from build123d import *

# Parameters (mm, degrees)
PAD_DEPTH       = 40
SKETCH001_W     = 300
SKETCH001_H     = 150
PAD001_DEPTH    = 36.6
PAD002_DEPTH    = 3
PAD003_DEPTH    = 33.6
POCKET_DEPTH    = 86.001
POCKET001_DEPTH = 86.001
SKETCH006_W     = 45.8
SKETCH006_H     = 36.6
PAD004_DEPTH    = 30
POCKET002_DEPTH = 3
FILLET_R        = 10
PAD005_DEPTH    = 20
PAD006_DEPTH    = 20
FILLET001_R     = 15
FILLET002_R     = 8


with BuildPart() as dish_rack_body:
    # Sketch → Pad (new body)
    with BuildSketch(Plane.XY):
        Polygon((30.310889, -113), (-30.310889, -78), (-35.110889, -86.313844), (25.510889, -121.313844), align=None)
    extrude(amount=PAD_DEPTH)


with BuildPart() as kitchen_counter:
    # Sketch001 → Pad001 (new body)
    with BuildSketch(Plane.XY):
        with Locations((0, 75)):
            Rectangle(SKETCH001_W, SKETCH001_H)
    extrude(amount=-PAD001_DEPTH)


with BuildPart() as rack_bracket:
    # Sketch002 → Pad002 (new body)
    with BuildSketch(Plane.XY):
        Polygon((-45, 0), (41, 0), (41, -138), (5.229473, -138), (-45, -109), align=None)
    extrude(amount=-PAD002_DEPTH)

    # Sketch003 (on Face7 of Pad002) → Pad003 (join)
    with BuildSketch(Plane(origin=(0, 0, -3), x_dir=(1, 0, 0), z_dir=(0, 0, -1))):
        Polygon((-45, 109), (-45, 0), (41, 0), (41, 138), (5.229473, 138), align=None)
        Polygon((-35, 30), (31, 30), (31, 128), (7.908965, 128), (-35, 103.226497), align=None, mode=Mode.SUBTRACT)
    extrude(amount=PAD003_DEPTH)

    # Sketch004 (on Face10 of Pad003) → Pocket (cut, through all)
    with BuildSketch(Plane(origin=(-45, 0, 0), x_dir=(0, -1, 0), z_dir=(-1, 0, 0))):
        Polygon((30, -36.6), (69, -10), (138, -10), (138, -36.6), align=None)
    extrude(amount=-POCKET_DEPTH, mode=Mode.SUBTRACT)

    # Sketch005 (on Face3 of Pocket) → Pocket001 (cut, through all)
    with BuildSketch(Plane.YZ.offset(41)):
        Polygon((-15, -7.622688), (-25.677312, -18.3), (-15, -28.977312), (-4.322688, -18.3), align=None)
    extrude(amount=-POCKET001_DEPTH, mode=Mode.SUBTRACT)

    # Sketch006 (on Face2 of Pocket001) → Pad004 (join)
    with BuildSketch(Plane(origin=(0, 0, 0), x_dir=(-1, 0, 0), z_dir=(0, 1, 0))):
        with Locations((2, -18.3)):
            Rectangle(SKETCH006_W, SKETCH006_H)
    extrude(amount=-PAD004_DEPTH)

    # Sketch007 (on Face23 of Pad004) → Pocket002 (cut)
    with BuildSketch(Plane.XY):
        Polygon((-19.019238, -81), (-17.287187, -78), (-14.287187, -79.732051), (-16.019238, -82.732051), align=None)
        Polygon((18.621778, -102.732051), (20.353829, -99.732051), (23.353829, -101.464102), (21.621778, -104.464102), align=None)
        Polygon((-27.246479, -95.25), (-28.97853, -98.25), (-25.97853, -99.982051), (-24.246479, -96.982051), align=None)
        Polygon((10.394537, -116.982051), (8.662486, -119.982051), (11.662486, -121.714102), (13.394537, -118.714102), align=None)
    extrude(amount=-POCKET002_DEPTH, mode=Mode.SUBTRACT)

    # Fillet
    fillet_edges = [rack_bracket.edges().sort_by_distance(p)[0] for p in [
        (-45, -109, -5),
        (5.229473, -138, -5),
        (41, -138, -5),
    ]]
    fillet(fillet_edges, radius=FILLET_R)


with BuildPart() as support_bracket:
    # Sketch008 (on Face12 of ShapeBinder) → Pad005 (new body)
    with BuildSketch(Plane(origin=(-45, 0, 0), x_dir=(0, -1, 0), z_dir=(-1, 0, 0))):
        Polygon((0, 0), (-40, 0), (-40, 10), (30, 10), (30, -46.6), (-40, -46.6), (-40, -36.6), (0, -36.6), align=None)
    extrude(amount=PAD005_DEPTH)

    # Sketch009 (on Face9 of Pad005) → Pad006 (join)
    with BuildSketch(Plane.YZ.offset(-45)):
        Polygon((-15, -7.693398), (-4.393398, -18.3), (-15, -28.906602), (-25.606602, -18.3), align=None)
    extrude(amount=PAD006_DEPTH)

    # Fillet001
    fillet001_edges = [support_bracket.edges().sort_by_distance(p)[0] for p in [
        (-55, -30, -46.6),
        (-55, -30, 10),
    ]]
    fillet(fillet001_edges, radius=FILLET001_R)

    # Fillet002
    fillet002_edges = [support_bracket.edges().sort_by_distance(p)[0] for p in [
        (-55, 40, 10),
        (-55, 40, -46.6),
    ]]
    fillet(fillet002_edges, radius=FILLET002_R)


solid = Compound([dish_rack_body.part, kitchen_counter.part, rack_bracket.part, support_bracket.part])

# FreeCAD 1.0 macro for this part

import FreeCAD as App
import Part
import Sketcher
from FreeCAD import Vector
Q = App.Units.Quantity


def edges_at(feature, points):
    """Names of the edges that pass closest to the given points."""
    edges = feature.Shape.Edges
    near = lambda p: min(range(len(edges)), key=lambda i: edges[i].distToShape(Part.Vertex(*p))[0])
    return sorted({f"Edge{near(p) + 1}" for p in points})


def add_polygon(sketch, points):
    """Adds a closed chain of lines whose ends are joined by coincident constraints."""
    first, n = sketch.GeometryCount, len(points)
    for a, b in zip(points, points[1:] + points[:1]):
        sketch.addGeometry(Part.LineSegment(App.Vector(*a, 0), App.Vector(*b, 0)), False)
    for i in range(n):
        sketch.addConstraint(Sketcher.Constraint("Coincident", first + i, 2, first + (i + 1) % n, 1))

doc = App.newDocument("Part")
params = doc.addObject("Spreadsheet::Sheet", "Params")
for row, (alias, value) in enumerate([
    ("sketch1_length", "70 mm"),
    ("sketch1_length2", "9.6 mm"),
    ("pad1_length", "40 mm"),
    ("sketch2_width", "300 mm"),
    ("sketch2_height", "150 mm"),
    ("pad2_length", "36.6 mm"),
    ("sketch3_width", "86 mm"),
    ("sketch3_height", "109 mm"),
    ("sketch3_height2", "138 mm"),
    ("pad3_length", "3 mm"),
    ("sketch4_width", "86 mm"),
    ("sketch4_width2", "66 mm"),
    ("sketch4_height", "109 mm"),
    ("sketch4_height2", "138 mm"),
    ("sketch4_height3", "98 mm"),
    ("pad4_length", "33.6 mm"),
    ("sketch5_width", "108 mm"),
    ("sketch5_width2", "69 mm"),
    ("sketch5_height", "26.6 mm"),
    ("sketch6_length", "15.099999 mm"),
    ("sketch7_width", "45.8 mm"),
    ("sketch7_height", "36.6 mm"),
    ("pad5_length", "30 mm"),
    ("pocket3_length", "3 mm"),
    ("fillet_radius", "10 mm"),
    ("sketch9_width", "40 mm"),
    ("sketch9_width2", "70 mm"),
    ("sketch9_height", "10 mm"),
    ("sketch9_height2", "36.6 mm"),
    ("pad6_length", "20 mm"),
    ("sketch10_length", "15 mm"),
    ("pad7_length", "20 mm"),
    ("fillet2_radius", "15 mm"),
    ("fillet3_radius", "8 mm"),
], start=1):
    params.set(f"A{row}", alias)
    params.set(f"B{row}", "=" + value)
    params.setAlias(f"B{row}", alias)

body = doc.addObject("PartDesign::Body", "Body")

# Sketch on XY plane
sketch1 = body.newObject("Sketcher::SketchObject", "Sketch")
sketch1.AttachmentSupport = (doc.getObject("XY_Plane"), [""])
sketch1.MapMode = "FlatFace"
add_polygon(sketch1, [(30, -113), (-30, -78), (-35, -86), (26, -121)])  # lines 0-3
sketch1.addConstraint(Sketcher.Constraint("Perpendicular", 0, 1))
sketch1.addConstraint(Sketcher.Constraint("Perpendicular", 1, 2))
sketch1.addConstraint(Sketcher.Constraint("Perpendicular", 2, 3))
sketch1.addConstraint(Sketcher.Constraint("Angle", 0, Q("150 deg")))
sketch1.addConstraint(Sketcher.Constraint("Distance", 0, Q("70 mm")))
sketch1.addConstraint(Sketcher.Constraint("DistanceY", 0, 2, -1, 1, Q("78 mm")))
sketch1.addConstraint(Sketcher.Constraint("Distance", 1, Q("9.6 mm")))
sketch1.addConstraint(Sketcher.Constraint("DistanceX", 0, 2, -1, 1, Q("30.310889 mm")))
sketch1.setExpression("Constraints[8]", "Params.sketch1_length")
sketch1.setExpression("Constraints[10]", "Params.sketch1_length2")
pad1 = body.newObject("PartDesign::Pad", "Pad")
pad1.Profile = sketch1
pad1.setExpression("Length", "Params.pad1_length")
body2 = doc.addObject("PartDesign::Body", "Body001")

# Sketch on XY plane
sketch2 = body2.newObject("Sketcher::SketchObject", "Sketch001")
sketch2.AttachmentSupport = (doc.getObject("XY_Plane001"), [""])
sketch2.MapMode = "FlatFace"
add_polygon(sketch2, [(-150, 150), (-150, 0), (150, 0), (150, 150)])  # lines 0-3
sketch2.addConstraint(Sketcher.Constraint("Vertical", 0))
sketch2.addConstraint(Sketcher.Constraint("Horizontal", 1))
sketch2.addConstraint(Sketcher.Constraint("Vertical", 2))
sketch2.addConstraint(Sketcher.Constraint("Horizontal", 3))
sketch2.addConstraint(Sketcher.Constraint("Symmetric", 0, 2, 1, 2, -1, 1))
sketch2.addConstraint(Sketcher.Constraint("DistanceX", 1, 1, 1, 2, Q("300 mm")))
sketch2.addConstraint(Sketcher.Constraint("DistanceY", 0, 2, 0, 1, Q("150 mm")))
sketch2.setExpression("Constraints[9]", "Params.sketch2_width")
sketch2.setExpression("Constraints[10]", "Params.sketch2_height")
pad2 = body2.newObject("PartDesign::Pad", "Pad001")
pad2.Profile = sketch2
pad2.setExpression("Length", "Params.pad2_length")
pad2.Reversed = True
body3 = doc.addObject("PartDesign::Body", "Body002")

# Sketch on XY plane
sketch3 = body3.newObject("Sketcher::SketchObject", "Sketch002")
sketch3.AttachmentSupport = (doc.getObject("XY_Plane002"), [""])
sketch3.MapMode = "FlatFace"
add_polygon(sketch3, [(41, 0), (-45, 0), (-45, -109), (5, -138), (41, -138)])  # lines 0-4
sketch3.addConstraint(Sketcher.Constraint("Horizontal", 0))
sketch3.addConstraint(Sketcher.Constraint("Vertical", 1))
sketch3.addConstraint(Sketcher.Constraint("Horizontal", 3))
sketch3.addConstraint(Sketcher.Constraint("Vertical", 4))
sketch3.addConstraint(Sketcher.Constraint("PointOnObject", 0, 2, -1))
sketch3.addConstraint(Sketcher.Constraint("DistanceX", 0, 2, 0, 1, Q("86 mm")))
sketch3.addConstraint(Sketcher.Constraint("DistanceY", 1, 2, 1, 1, Q("109 mm")))
sketch3.addConstraint(Sketcher.Constraint("DistanceY", 4, 1, 4, 2, Q("138 mm")))
sketch3.addConstraint(Sketcher.Constraint("Angle", 2, Q("-30 deg")))
sketch3.addConstraint(Sketcher.Constraint("DistanceX", 0, 2, -1, 1, Q("45 mm")))
sketch3.setExpression("Constraints[10]", "Params.sketch3_width")
sketch3.setExpression("Constraints[11]", "Params.sketch3_height")
sketch3.setExpression("Constraints[12]", "Params.sketch3_height2")
pad3 = body3.newObject("PartDesign::Pad", "Pad002")
pad3.Profile = sketch3
pad3.setExpression("Length", "Params.pad3_length")
pad3.Reversed = True

# Sketch on XY plane
sketch4 = body3.newObject("Sketcher::SketchObject", "Sketch003")
sketch4.AttachmentSupport = (doc.getObject("XY_Plane002"), [""])
sketch4.MapMode = "FlatFace"
sketch4.AttachmentOffset = App.Placement(Vector(0, 0, -3), App.Rotation())
add_polygon(sketch4, [(-45, -109), (-45, 0), (41, 0), (41, -138), (5, -138)])  # lines 0-4
add_polygon(sketch4, [(31, -30), (-35, -30), (-35, -103), (8, -128), (31, -128)])  # lines 5-9
sketch4.addConstraint(Sketcher.Constraint("Vertical", 0))
sketch4.addConstraint(Sketcher.Constraint("Horizontal", 1))
sketch4.addConstraint(Sketcher.Constraint("Vertical", 2))
sketch4.addConstraint(Sketcher.Constraint("Horizontal", 3))
sketch4.addConstraint(Sketcher.Constraint("Horizontal", 5))
sketch4.addConstraint(Sketcher.Constraint("Vertical", 6))
sketch4.addConstraint(Sketcher.Constraint("Horizontal", 8))
sketch4.addConstraint(Sketcher.Constraint("Vertical", 9))
sketch4.addConstraint(Sketcher.Constraint("PointOnObject", 0, 2, -1))
sketch4.addConstraint(Sketcher.Constraint("Parallel", 4, 7))
sketch4.addConstraint(Sketcher.Constraint("DistanceX", 1, 1, 1, 2, Q("86 mm")))
sketch4.addConstraint(Sketcher.Constraint("DistanceX", 5, 2, 5, 1, Q("66 mm")))
sketch4.addConstraint(Sketcher.Constraint("DistanceY", 0, 1, 0, 2, Q("109 mm")))
sketch4.addConstraint(Sketcher.Constraint("DistanceY", 2, 2, 2, 1, Q("138 mm")))
sketch4.addConstraint(Sketcher.Constraint("DistanceY", 9, 1, 9, 2, Q("98 mm")))
sketch4.addConstraint(Sketcher.Constraint("Angle", 4, Q("150 deg")))
sketch4.addConstraint(Sketcher.Constraint("DistanceX", 0, 2, -1, 1, Q("45 mm")))
sketch4.addConstraint(Sketcher.Constraint("DistanceX", 5, 2, -1, 1, Q("35 mm")))
sketch4.addConstraint(Sketcher.Constraint("DistanceY", 5, 2, -1, 1, Q("30 mm")))
sketch4.addConstraint(Sketcher.Constraint("DistanceX", 8, 1, 8, 2, Q("23.091035 mm")))
sketch4.setExpression("Constraints[20]", "Params.sketch4_width")
sketch4.setExpression("Constraints[21]", "Params.sketch4_width2")
sketch4.setExpression("Constraints[22]", "Params.sketch4_height")
sketch4.setExpression("Constraints[23]", "Params.sketch4_height2")
sketch4.setExpression("Constraints[24]", "Params.sketch4_height3")
pad4 = body3.newObject("PartDesign::Pad", "Pad003")
pad4.Profile = sketch4
pad4.setExpression("Length", "Params.pad4_length")
pad4.Reversed = True

# Sketch on YZ plane
sketch5 = body3.newObject("Sketcher::SketchObject", "Sketch004")
sketch5.AttachmentSupport = (doc.getObject("YZ_Plane002"), [""])
sketch5.MapMode = "FlatFace"
sketch5.AttachmentOffset = App.Placement(Vector(0, 0, -45), App.Rotation())
add_polygon(sketch5, [(-69, -10), (-30, -37), (-138, -37), (-138, -10)])  # lines 0-3
sketch5.addConstraint(Sketcher.Constraint("Horizontal", 1))
sketch5.addConstraint(Sketcher.Constraint("Vertical", 2))
sketch5.addConstraint(Sketcher.Constraint("Horizontal", 3))
sketch5.addConstraint(Sketcher.Constraint("DistanceX", 1, 2, 1, 1, Q("108 mm")))
sketch5.addConstraint(Sketcher.Constraint("DistanceX", 3, 1, 3, 2, Q("69 mm")))
sketch5.addConstraint(Sketcher.Constraint("DistanceY", 2, 1, 2, 2, Q("26.6 mm")))
sketch5.addConstraint(Sketcher.Constraint("DistanceX", 0, 2, -1, 1, Q("30 mm")))
sketch5.addConstraint(Sketcher.Constraint("DistanceY", 2, 2, -1, 1, Q("10 mm")))
sketch5.setExpression("Constraints[7]", "Params.sketch5_width")
sketch5.setExpression("Constraints[8]", "Params.sketch5_width2")
sketch5.setExpression("Constraints[9]", "Params.sketch5_height")
pocket1 = body3.newObject("PartDesign::Pocket", "Pocket")
pocket1.Profile = sketch5
pocket1.Type = "ThroughAll"
pocket1.Reversed = True

# Sketch on YZ plane
sketch6 = body3.newObject("Sketcher::SketchObject", "Sketch005")
sketch6.AttachmentSupport = (doc.getObject("YZ_Plane002"), [""])
sketch6.MapMode = "FlatFace"
sketch6.AttachmentOffset = App.Placement(Vector(0, 0, 41), App.Rotation())
add_polygon(sketch6, [(-15, -8), (-26, -18), (-15, -29), (-4, -18)])  # lines 0-3
sketch6.addConstraint(Sketcher.Constraint("Perpendicular", 0, 1))
sketch6.addConstraint(Sketcher.Constraint("Perpendicular", 1, 2))
sketch6.addConstraint(Sketcher.Constraint("Perpendicular", 2, 3))
sketch6.addConstraint(Sketcher.Constraint("Horizontal", 0, 2, 2, 2))
sketch6.addConstraint(Sketcher.Constraint("Vertical", 1, 2, 3, 2))
sketch6.addConstraint(Sketcher.Constraint("DistanceX", 1, 2, -1, 1, Q("15 mm")))
sketch6.addConstraint(Sketcher.Constraint("Distance", 0, Q("15.099999 mm")))
sketch6.addConstraint(Sketcher.Constraint("DistanceY", 0, 2, -1, 1, Q("18.3 mm")))
sketch6.setExpression("Constraints[10]", "Params.sketch6_length")
pocket2 = body3.newObject("PartDesign::Pocket", "Pocket001")
pocket2.Profile = sketch6
pocket2.Type = "ThroughAll"

# Sketch on XZ plane
sketch7 = body3.newObject("Sketcher::SketchObject", "Sketch006")
sketch7.AttachmentSupport = (doc.getObject("XZ_Plane002"), [""])
sketch7.MapMode = "FlatFace"
add_polygon(sketch7, [(21, 0), (21, -37), (-25, -37), (-25, 0)])  # lines 0-3
sketch7.addConstraint(Sketcher.Constraint("Vertical", 0))
sketch7.addConstraint(Sketcher.Constraint("Horizontal", 1))
sketch7.addConstraint(Sketcher.Constraint("Vertical", 2))
sketch7.addConstraint(Sketcher.Constraint("Horizontal", 3))
sketch7.addConstraint(Sketcher.Constraint("PointOnObject", 2, 2, -1))
sketch7.addConstraint(Sketcher.Constraint("DistanceX", 1, 2, 1, 1, Q("45.8 mm")))
sketch7.addConstraint(Sketcher.Constraint("DistanceY", 0, 2, 0, 1, Q("36.6 mm")))
sketch7.addConstraint(Sketcher.Constraint("DistanceX", -1, 1, 0, 2, Q("20.9 mm")))
sketch7.setExpression("Constraints[9]", "Params.sketch7_width")
sketch7.setExpression("Constraints[10]", "Params.sketch7_height")
pad5 = body3.newObject("PartDesign::Pad", "Pad004")
pad5.Profile = sketch7
pad5.setExpression("Length", "Params.pad5_length")

# Sketch on XY plane
sketch8 = body3.newObject("Sketcher::SketchObject", "Sketch007")
sketch8.AttachmentSupport = (doc.getObject("XY_Plane002"), [""])
sketch8.MapMode = "FlatFace"
add_polygon(sketch8, [(-17.3, -78), (-19, -81), (-16, -82.7), (-14.3, -79.7)])  # lines 0-3
add_polygon(sketch8, [(20.4, -99.7), (18.6, -102.7), (21.6, -104.5), (23.4, -101.5)])  # lines 4-7
add_polygon(sketch8, [(-27.2, -95.2), (-29, -98.2), (-26, -100), (-24.2, -97)])  # lines 8-11
add_polygon(sketch8, [(10.4, -117), (8.7, -120), (11.7, -121.7), (13.4, -118.7)])  # lines 12-15
sketch8.addConstraint(Sketcher.Constraint("Perpendicular", 0, 1))
sketch8.addConstraint(Sketcher.Constraint("Perpendicular", 1, 2))
sketch8.addConstraint(Sketcher.Constraint("Perpendicular", 2, 3))
sketch8.addConstraint(Sketcher.Constraint("Perpendicular", 3, 4))
sketch8.addConstraint(Sketcher.Constraint("Perpendicular", 4, 5))
sketch8.addConstraint(Sketcher.Constraint("Perpendicular", 5, 6))
sketch8.addConstraint(Sketcher.Constraint("Perpendicular", 6, 7))
sketch8.addConstraint(Sketcher.Constraint("Perpendicular", 7, 8))
sketch8.addConstraint(Sketcher.Constraint("Perpendicular", 8, 9))
sketch8.addConstraint(Sketcher.Constraint("Perpendicular", 9, 10))
sketch8.addConstraint(Sketcher.Constraint("Perpendicular", 10, 11))
sketch8.addConstraint(Sketcher.Constraint("Perpendicular", 11, 12))
sketch8.addConstraint(Sketcher.Constraint("Perpendicular", 12, 13))
sketch8.addConstraint(Sketcher.Constraint("Perpendicular", 13, 14))
sketch8.addConstraint(Sketcher.Constraint("Perpendicular", 14, 15))
sketch8.addConstraint(Sketcher.Constraint("Equal", 0, 1))
sketch8.addConstraint(Sketcher.Constraint("Equal", 3, 4))
sketch8.addConstraint(Sketcher.Constraint("Equal", 4, 5))
sketch8.addConstraint(Sketcher.Constraint("Equal", 7, 8))
sketch8.addConstraint(Sketcher.Constraint("Equal", 8, 9))
sketch8.addConstraint(Sketcher.Constraint("Equal", 11, 12))
sketch8.addConstraint(Sketcher.Constraint("Equal", 12, 13))
sketch8.addConstraint(Sketcher.Constraint("Angle", 0, Q("-120.000003 deg")))
sketch8.addConstraint(Sketcher.Constraint("DistanceY", 0, 2, -1, 1, Q("81 mm")))
sketch8.addConstraint(Sketcher.Constraint("DistanceY", 3, 2, -1, 1, Q("78 mm")))
sketch8.addConstraint(Sketcher.Constraint("DistanceY", 4, 2, 1, 2, Q("20 mm")))
sketch8.addConstraint(Sketcher.Constraint("DistanceY", 12, 2, 9, 2, Q("20 mm")))
sketch8.addConstraint(Sketcher.Constraint("DistanceY", 8, 2, -1, 1, Q("98.25 mm")))
sketch8.addConstraint(Sketcher.Constraint("DistanceX", 0, 2, -1, 1, Q("19.019238 mm")))
sketch8.addConstraint(Sketcher.Constraint("DistanceX", -1, 1, 6, 2, Q("23.353829 mm")))
sketch8.addConstraint(Sketcher.Constraint("DistanceX", 8, 2, -1, 1, Q("28.97853 mm")))
sketch8.addConstraint(Sketcher.Constraint("DistanceX", 13, 2, 4, 2, Q("6.959292 mm")))
pocket3 = body3.newObject("PartDesign::Pocket", "Pocket002")
pocket3.Profile = sketch8
pocket3.setExpression("Length", "Params.pocket3_length")
doc.recompute()

fillet = body3.newObject("PartDesign::Fillet", "Fillet")
fillet.Base = (pocket3, edges_at(pocket3, [(-45, -109, -5), (5.229, -138, -5), (41, -138, -5)]))
fillet.setExpression("Radius", "Params.fillet_radius")
body4 = doc.addObject("PartDesign::Body", "Body003")

# Sketch on YZ plane
sketch9 = body4.newObject("Sketcher::SketchObject", "Sketch008")
sketch9.AttachmentSupport = (doc.getObject("YZ_Plane003"), [""])
sketch9.MapMode = "FlatFace"
sketch9.AttachmentOffset = App.Placement(Vector(0, 0, -45), App.Rotation())
add_polygon(sketch9, [(40, 0), (0, 0), (0, -37), (40, -37), (40, -47), (-30, -47), (-30, 10), (40, 10)])  # lines 0-7
sketch9.addConstraint(Sketcher.Constraint("Horizontal", 0))
sketch9.addConstraint(Sketcher.Constraint("Vertical", 1))
sketch9.addConstraint(Sketcher.Constraint("Horizontal", 2))
sketch9.addConstraint(Sketcher.Constraint("Vertical", 3))
sketch9.addConstraint(Sketcher.Constraint("Horizontal", 4))
sketch9.addConstraint(Sketcher.Constraint("Vertical", 5))
sketch9.addConstraint(Sketcher.Constraint("Horizontal", 6))
sketch9.addConstraint(Sketcher.Constraint("Vertical", 7))
sketch9.addConstraint(Sketcher.Constraint("Coincident", 0, 2, -1, 1))
sketch9.addConstraint(Sketcher.Constraint("Vertical", 3, 2, 6, 2))
sketch9.addConstraint(Sketcher.Constraint("Equal", 3, 7))
sketch9.addConstraint(Sketcher.Constraint("DistanceX", 0, 2, 0, 1, Q("40 mm")))
sketch9.addConstraint(Sketcher.Constraint("DistanceX", 4, 2, 4, 1, Q("70 mm")))
sketch9.addConstraint(Sketcher.Constraint("DistanceY", 3, 2, 3, 1, Q("10 mm")))
sketch9.addConstraint(Sketcher.Constraint("DistanceY", 1, 2, 1, 1, Q("36.6 mm")))
sketch9.setExpression("Constraints[19]", "Params.sketch9_width")
sketch9.setExpression("Constraints[20]", "Params.sketch9_width2")
sketch9.setExpression("Constraints[21]", "Params.sketch9_height")
sketch9.setExpression("Constraints[22]", "Params.sketch9_height2")
pad6 = body4.newObject("PartDesign::Pad", "Pad005")
pad6.Profile = sketch9
pad6.setExpression("Length", "Params.pad6_length")
pad6.Reversed = True

# Sketch on YZ plane
sketch10 = body4.newObject("Sketcher::SketchObject", "Sketch009")
sketch10.AttachmentSupport = (doc.getObject("YZ_Plane003"), [""])
sketch10.MapMode = "FlatFace"
sketch10.AttachmentOffset = App.Placement(Vector(0, 0, -45), App.Rotation())
add_polygon(sketch10, [(-4, -18), (-15, -8), (-26, -18), (-15, -29)])  # lines 0-3
sketch10.addConstraint(Sketcher.Constraint("Perpendicular", 0, 1))
sketch10.addConstraint(Sketcher.Constraint("Perpendicular", 1, 2))
sketch10.addConstraint(Sketcher.Constraint("Perpendicular", 2, 3))
sketch10.addConstraint(Sketcher.Constraint("Horizontal", 1, 2, 3, 2))
sketch10.addConstraint(Sketcher.Constraint("Vertical", 0, 2, 2, 2))
sketch10.addConstraint(Sketcher.Constraint("Distance", 0, Q("15 mm")))
sketch10.addConstraint(Sketcher.Constraint("DistanceX", 0, 2, -1, 1, Q("15 mm")))
sketch10.addConstraint(Sketcher.Constraint("DistanceY", 1, 2, -1, 1, Q("18.3 mm")))
sketch10.setExpression("Constraints[9]", "Params.sketch10_length")
pad7 = body4.newObject("PartDesign::Pad", "Pad006")
pad7.Profile = sketch10
pad7.setExpression("Length", "Params.pad7_length")
doc.recompute()

fillet2 = body4.newObject("PartDesign::Fillet", "Fillet001")
fillet2.Base = (pad7, edges_at(pad7, [(-55, -30, -46.6), (-55, -30, 10)]))
fillet2.setExpression("Radius", "Params.fillet2_radius")
doc.recompute()

fillet3 = body4.newObject("PartDesign::Fillet", "Fillet002")
fillet3.Base = (fillet2, edges_at(fillet2, [(-55, 40, 10), (-55, 40, -46.6)]))
fillet3.setExpression("Radius", "Params.fillet3_radius")

doc.recompute()
